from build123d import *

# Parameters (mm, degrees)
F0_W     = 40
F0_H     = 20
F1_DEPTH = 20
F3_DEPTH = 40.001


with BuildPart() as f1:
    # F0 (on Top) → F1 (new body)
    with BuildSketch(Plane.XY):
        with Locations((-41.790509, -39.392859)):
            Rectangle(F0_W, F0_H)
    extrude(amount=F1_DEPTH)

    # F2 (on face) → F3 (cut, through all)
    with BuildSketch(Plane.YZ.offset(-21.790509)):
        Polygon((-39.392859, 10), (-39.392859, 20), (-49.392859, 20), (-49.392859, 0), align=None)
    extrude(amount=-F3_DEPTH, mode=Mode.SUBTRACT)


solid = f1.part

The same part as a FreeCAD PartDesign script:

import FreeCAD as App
import Part
import Sketcher

V = App.Vector

doc = App.newDocument("Part")
body = doc.addObject("PartDesign::Body", "Body")

sketch1 = doc.addObject("Sketcher::SketchObject", "Sketch")
body.addObject(sketch1)
sketch1.AttachmentSupport = (doc.XY_Plane, [""])
sketch1.MapMode = "FlatFace"
sketch1.addGeometry([
    Part.LineSegment(V(-62, -29, 0), V(-62, -49, 0)),
    Part.LineSegment(V(-62, -49, 0), V(-22, -49, 0)),
    Part.LineSegment(V(-22, -49, 0), V(-22, -29, 0)),
    Part.LineSegment(V(-22, -29, 0), V(-62, -29, 0)),
], False)
sketch1.addConstraint([
    Sketcher.Constraint("Coincident", 0, 2, 1, 1),
    Sketcher.Constraint("Coincident", 1, 2, 2, 1),
    Sketcher.Constraint("Coincident", 2, 2, 3, 1),
    Sketcher.Constraint("Coincident", 3, 2, 0, 1),
    Sketcher.Constraint("Vertical", 0),
    Sketcher.Constraint("Horizontal", 1),
    Sketcher.Constraint("Vertical", 2),
    Sketcher.Constraint("Horizontal", 3),
    Sketcher.Constraint("DistanceX", 1, 1, 1, 2, 40.0),
    Sketcher.Constraint("DistanceY", 0, 2, 0, 1, 20.0),
    Sketcher.Constraint("DistanceX", 0, 2, -1, 1, 61.790509),
    Sketcher.Constraint("DistanceY", 0, 2, -1, 1, 49.392859),
])
pad1 = doc.addObject("PartDesign::Pad", "Pad")
body.addObject(pad1)
pad1.Profile = sketch1
pad1.Length = 20

sketch2 = doc.addObject("Sketcher::SketchObject", "Sketch001")
body.addObject(sketch2)
sketch2.AttachmentSupport = (doc.YZ_Plane, [""])
sketch2.MapMode = "FlatFace"
sketch2.AttachmentOffset = App.Placement(V(0, 0, -21.790509), App.Rotation())
sketch2.addGeometry([
    Part.LineSegment(V(-39, 10, 0), V(-39, 20, 0)),
    Part.LineSegment(V(-39, 20, 0), V(-49, 20, 0)),
    Part.LineSegment(V(-49, 20, 0), V(-49, 0, 0)),
    Part.LineSegment(V(-49, 0, 0), V(-39, 10, 0)),
], False)
sketch2.addConstraint([
    Sketcher.Constraint("Coincident", 0, 2, 1, 1),
    Sketcher.Constraint("Coincident", 1, 2, 2, 1),
    Sketcher.Constraint("Coincident", 2, 2, 3, 1),
    Sketcher.Constraint("Coincident", 3, 2, 0, 1),
    Sketcher.Constraint("Vertical", 0),
    Sketcher.Constraint("Horizontal", 1),
    Sketcher.Constraint("Vertical", 2),
    Sketcher.Constraint("PointOnObject", 2, 2, -1),
    Sketcher.Constraint("Equal", 1, 0),
    Sketcher.Constraint("DistanceX", 1, 2, 1, 1, 10.0),
    Sketcher.Constraint("DistanceY", 2, 2, 2, 1, 20.0),
    Sketcher.Constraint("DistanceX", 0, 2, -1, 1, 39.392859),
])
pocket1 = doc.addObject("PartDesign::Pocket", "Pocket")
body.addObject(pocket1)
pocket1.Profile = sketch2
pocket1.Type = "ThroughAll"

doc.recompute()
